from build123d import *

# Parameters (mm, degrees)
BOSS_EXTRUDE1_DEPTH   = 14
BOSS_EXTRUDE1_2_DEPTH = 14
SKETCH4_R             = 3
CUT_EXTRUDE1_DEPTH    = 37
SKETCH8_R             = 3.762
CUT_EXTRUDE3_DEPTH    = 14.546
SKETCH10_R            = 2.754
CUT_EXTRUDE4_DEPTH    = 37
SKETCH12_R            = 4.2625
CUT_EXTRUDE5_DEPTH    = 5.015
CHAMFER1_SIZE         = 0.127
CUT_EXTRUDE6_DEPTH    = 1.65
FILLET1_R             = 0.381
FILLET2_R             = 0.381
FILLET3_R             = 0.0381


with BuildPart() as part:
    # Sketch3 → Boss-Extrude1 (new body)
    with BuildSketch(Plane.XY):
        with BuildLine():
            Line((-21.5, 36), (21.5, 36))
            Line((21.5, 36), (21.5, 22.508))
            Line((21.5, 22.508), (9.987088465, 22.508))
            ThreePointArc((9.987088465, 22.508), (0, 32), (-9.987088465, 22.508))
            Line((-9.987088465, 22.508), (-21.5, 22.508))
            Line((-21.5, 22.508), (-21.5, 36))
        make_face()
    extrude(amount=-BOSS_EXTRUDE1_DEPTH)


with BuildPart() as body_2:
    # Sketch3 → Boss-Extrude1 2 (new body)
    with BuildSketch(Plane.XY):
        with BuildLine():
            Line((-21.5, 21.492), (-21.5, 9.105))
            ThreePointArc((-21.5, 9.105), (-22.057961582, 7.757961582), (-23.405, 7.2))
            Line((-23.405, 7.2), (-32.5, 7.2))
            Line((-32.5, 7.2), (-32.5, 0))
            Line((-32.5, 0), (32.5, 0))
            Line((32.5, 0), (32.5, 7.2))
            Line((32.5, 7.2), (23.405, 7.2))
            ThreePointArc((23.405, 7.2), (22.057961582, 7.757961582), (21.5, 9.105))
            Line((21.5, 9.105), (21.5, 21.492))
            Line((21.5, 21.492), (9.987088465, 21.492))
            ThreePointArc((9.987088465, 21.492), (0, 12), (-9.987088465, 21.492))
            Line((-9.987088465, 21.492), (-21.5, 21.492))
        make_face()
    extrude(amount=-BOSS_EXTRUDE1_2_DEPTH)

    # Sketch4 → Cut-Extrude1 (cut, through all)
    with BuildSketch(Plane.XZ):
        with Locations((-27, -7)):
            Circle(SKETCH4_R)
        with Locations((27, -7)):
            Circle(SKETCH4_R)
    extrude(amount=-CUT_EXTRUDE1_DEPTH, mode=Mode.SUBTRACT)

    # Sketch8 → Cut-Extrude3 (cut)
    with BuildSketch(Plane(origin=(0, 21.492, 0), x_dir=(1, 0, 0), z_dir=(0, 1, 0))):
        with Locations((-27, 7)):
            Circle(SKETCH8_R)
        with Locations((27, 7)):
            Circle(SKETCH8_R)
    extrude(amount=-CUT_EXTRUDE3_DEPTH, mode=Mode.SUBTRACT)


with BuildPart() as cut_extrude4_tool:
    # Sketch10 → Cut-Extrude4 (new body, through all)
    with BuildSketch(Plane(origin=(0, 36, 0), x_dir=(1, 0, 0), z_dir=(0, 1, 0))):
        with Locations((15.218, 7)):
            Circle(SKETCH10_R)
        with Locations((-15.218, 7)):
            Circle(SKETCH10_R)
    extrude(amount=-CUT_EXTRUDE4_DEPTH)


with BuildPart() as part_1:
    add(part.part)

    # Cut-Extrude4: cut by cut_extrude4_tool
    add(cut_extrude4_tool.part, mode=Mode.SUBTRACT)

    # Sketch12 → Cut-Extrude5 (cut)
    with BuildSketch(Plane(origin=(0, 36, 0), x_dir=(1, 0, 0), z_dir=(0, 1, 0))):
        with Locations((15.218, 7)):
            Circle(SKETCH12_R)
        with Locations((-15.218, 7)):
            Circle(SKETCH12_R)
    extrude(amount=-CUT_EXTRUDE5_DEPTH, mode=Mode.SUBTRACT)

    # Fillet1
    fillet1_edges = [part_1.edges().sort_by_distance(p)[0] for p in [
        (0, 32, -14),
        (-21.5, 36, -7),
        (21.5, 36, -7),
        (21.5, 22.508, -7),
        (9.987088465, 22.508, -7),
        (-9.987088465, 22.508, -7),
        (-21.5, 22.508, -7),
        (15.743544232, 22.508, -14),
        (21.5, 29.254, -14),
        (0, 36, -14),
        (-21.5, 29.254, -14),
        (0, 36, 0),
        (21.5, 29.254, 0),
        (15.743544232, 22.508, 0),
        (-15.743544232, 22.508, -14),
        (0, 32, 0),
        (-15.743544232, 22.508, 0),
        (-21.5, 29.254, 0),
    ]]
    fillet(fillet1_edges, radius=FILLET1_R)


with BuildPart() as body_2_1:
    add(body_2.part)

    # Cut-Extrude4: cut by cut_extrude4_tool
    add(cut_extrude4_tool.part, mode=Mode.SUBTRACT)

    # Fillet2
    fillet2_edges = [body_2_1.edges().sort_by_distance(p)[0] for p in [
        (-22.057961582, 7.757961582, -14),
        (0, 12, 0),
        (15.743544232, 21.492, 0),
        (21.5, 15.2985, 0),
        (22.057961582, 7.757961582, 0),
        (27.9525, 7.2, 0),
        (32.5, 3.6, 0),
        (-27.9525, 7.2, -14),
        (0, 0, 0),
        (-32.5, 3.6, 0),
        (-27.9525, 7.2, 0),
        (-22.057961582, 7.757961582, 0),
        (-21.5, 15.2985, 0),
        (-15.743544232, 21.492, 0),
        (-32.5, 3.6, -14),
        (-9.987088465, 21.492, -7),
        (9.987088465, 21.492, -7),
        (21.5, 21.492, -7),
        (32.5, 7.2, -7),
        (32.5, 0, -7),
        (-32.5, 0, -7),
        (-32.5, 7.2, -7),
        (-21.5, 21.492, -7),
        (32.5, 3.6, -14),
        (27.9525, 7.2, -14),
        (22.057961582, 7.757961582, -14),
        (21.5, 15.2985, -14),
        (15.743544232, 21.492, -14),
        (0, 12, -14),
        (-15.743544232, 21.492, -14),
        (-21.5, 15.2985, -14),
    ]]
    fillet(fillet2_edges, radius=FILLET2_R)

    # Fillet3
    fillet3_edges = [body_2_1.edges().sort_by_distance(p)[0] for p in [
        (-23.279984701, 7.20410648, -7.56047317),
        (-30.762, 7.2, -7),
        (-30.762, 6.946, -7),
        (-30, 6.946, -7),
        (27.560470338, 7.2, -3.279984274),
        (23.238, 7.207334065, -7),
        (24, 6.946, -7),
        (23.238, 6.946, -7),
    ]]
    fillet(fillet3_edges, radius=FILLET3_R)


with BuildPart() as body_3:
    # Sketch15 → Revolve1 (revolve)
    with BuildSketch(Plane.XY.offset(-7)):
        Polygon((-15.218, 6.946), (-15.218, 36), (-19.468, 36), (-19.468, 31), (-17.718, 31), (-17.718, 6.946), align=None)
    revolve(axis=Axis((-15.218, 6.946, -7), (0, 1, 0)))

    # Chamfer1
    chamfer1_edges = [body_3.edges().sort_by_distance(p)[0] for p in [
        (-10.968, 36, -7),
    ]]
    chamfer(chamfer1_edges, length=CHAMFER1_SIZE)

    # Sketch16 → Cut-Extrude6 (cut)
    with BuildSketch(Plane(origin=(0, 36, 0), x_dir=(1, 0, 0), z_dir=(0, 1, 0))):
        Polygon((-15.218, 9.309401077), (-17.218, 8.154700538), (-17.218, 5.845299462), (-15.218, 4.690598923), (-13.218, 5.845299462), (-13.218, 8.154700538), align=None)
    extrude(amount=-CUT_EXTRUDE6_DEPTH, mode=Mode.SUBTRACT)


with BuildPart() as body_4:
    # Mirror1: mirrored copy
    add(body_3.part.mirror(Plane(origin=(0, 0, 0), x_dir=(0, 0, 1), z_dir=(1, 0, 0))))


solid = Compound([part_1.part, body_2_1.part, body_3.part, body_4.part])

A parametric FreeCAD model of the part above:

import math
import FreeCAD as App
import Part
import Sketcher

V = App.Vector
Q = App.Units.Quantity


def edges_at(feature, points):
    """Names of the edges that pass closest to the given points."""
    edges = feature.Shape.Edges
    near = lambda p: min(range(len(edges)), key=lambda i: edges[i].distToShape(Part.Vertex(*p))[0])
    return sorted({f"Edge{near(p) + 1}" for p in points})

doc = App.newDocument("Part")
body = doc.addObject("PartDesign::Body", "Body")

# Sketch on XY plane
sketch1 = doc.addObject("Sketcher::SketchObject", "Sketch")
body.addObject(sketch1)
sketch1.AttachmentSupport = (doc.XY_Plane, [""])
sketch1.MapMode = "FlatFace"
sketch1.addGeometry([
    Part.LineSegment(V(22, 36, 0), V(-22, 36, 0)),  # 0
    Part.LineSegment(V(-22, 36, 0), V(-22, 23, 0)),  # 1
    Part.LineSegment(V(-22, 23, 0), V(-10, 23, 0)),  # 2
    Part.ArcOfCircle(Part.Circle(V(0, 22, 0), V(0, 0, 1), 10), math.radians(3), math.radians(177)),  # 3
    Part.LineSegment(V(10, 23, 0), V(22, 23, 0)),  # 4
    Part.LineSegment(V(22, 23, 0), V(22, 36, 0)),  # 5
], False)
sketch1.addConstraint([
    Sketcher.Constraint("Coincident", 0, 2, 1, 1),
    Sketcher.Constraint("Coincident", 1, 2, 2, 1),
    Sketcher.Constraint("Coincident", 2, 2, 3, 2),
    Sketcher.Constraint("Coincident", 3, 1, 4, 1),
    Sketcher.Constraint("Coincident", 4, 2, 5, 1),
    Sketcher.Constraint("Coincident", 5, 2, 0, 1),
    Sketcher.Constraint("Horizontal", 0),
    Sketcher.Constraint("Vertical", 1),
    Sketcher.Constraint("Horizontal", 2),
    Sketcher.Constraint("Horizontal", 4),
    Sketcher.Constraint("Vertical", 5),
    Sketcher.Constraint("Symmetric", 2, 2, 3, 1, -2),
    Sketcher.Constraint("Equal", 2, 4),
    Sketcher.Constraint("Radius", 3, Q("10 mm")),
    Sketcher.Constraint("DistanceX", 0, 2, 0, 1, Q("43 mm")),
    Sketcher.Constraint("DistanceY", -1, 1, 3, 3, Q("22 mm")),
    Sketcher.Constraint("DistanceY", -1, 1, 0, 2, Q("36 mm")),
    Sketcher.Constraint("DistanceY", 1, 2, 1, 1, Q("13.492 mm")),
])
pad1 = doc.addObject("PartDesign::Pad", "Pad")
body.addObject(pad1)
pad1.Profile = sketch1
pad1.Length = 14
pad1.Reversed = True
body2 = doc.addObject("PartDesign::Body", "Body001")

# Sketch on XY plane
sketch2 = doc.addObject("Sketcher::SketchObject", "Sketch001")
body2.addObject(sketch2)
sketch2.AttachmentSupport = (doc.getObject("XY_Plane001"), [""])
sketch2.MapMode = "FlatFace"
sketch2.addGeometry([
    Part.LineSegment(V(-21.5, 21.5, 0), V(-21.5, 9.1, 0)),  # 0
    Part.ArcOfCircle(Part.Circle(V(-23.4, 9.1, 0), V(0, 0, 1), 1.9), math.radians(-90), math.radians(0)),  # 1
    Part.LineSegment(V(-23.4, 7.2, 0), V(-32.5, 7.2, 0)),  # 2
    Part.LineSegment(V(-32.5, 7.2, 0), V(-32.5, 0, 0)),  # 3
    Part.LineSegment(V(-32.5, 0, 0), V(32.5, 0, 0)),  # 4
    Part.LineSegment(V(32.5, 0, 0), V(32.5, 7.2, 0)),  # 5
    Part.LineSegment(V(32.5, 7.2, 0), V(23.4, 7.2, 0)),  # 6
    Part.ArcOfCircle(Part.Circle(V(23.4, 9.1, 0), V(0, 0, 1), 1.9), math.radians(-180), math.radians(-90)),  # 7
    Part.LineSegment(V(21.5, 9.1, 0), V(21.5, 21.5, 0)),  # 8
    Part.LineSegment(V(21.5, 21.5, 0), V(10, 21.5, 0)),  # 9
    Part.ArcOfCircle(Part.Circle(V(0, 22, 0), V(0, 0, 1), 10), math.radians(-177), math.radians(-3)),  # 10
    Part.LineSegment(V(-10, 21.5, 0), V(-21.5, 21.5, 0)),  # 11
], False)
sketch2.addConstraint([
    Sketcher.Constraint("Tangent", 0, 2, 1, 2),
    Sketcher.Constraint("Tangent", 1, 1, 2, 1),
    Sketcher.Constraint("Coincident", 2, 2, 3, 1),
    Sketcher.Constraint("Coincident", 3, 2, 4, 1),
    Sketcher.Constraint("Coincident", 4, 2, 5, 1),
    Sketcher.Constraint("Coincident", 5, 2, 6, 1),
    Sketcher.Constraint("Tangent", 6, 2, 7, 2),
    Sketcher.Constraint("Tangent", 7, 1, 8, 1),
    Sketcher.Constraint("Coincident", 8, 2, 9, 1),
    Sketcher.Constraint("Coincident", 9, 2, 10, 2),
    Sketcher.Constraint("Coincident", 10, 1, 11, 1),
    Sketcher.Constraint("Coincident", 11, 2, 0, 1),
    Sketcher.Constraint("Vertical", 0),
    Sketcher.Constraint("Horizontal", 2),
    Sketcher.Constraint("Vertical", 3),
    Sketcher.Constraint("Horizontal", 4),
    Sketcher.Constraint("Vertical", 5),
    Sketcher.Constraint("Horizontal", 6),
    Sketcher.Constraint("Vertical", 8),
    Sketcher.Constraint("Horizontal", 9),
    Sketcher.Constraint("Horizontal", 11),
    Sketcher.Constraint("Equal", 1, 7),
    Sketcher.Constraint("Symmetric", 3, 2, 4, 2, -1, 1),
    Sketcher.Constraint("Symmetric", 1, 3, 7, 3, -2),
    Sketcher.Constraint("Symmetric", 9, 2, 10, 1, -2),
    Sketcher.Constraint("Radius", 10, Q("10 mm")),
    Sketcher.Constraint("DistanceX", 4, 1, 4, 2, Q("65 mm")),
    Sketcher.Constraint("DistanceY", 3, 2, 3, 1, Q("7.2 mm")),
    Sketcher.Constraint("DistanceY", -1, 1, 10, 3, Q("22 mm")),
    Sketcher.Constraint("Radius", 1, Q("1.905 mm")),
    Sketcher.Constraint("DistanceX", 2, 2, 0, 2, Q("11 mm")),
    Sketcher.Constraint("DistanceY", 0, 2, 0, 1, Q("12.387 mm")),
])
pad2 = doc.addObject("PartDesign::Pad", "Pad001")
body2.addObject(pad2)
pad2.Profile = sketch2
pad2.Length = 14
pad2.Reversed = True

# Sketch on XZ plane
sketch3 = doc.addObject("Sketcher::SketchObject", "Sketch002")
body2.addObject(sketch3)
sketch3.AttachmentSupport = (doc.getObject("XZ_Plane001"), [""])
sketch3.MapMode = "FlatFace"
sketch3.addGeometry([
    Part.Circle(V(-27, -7, 0), V(0, 0, 1), 3),
    Part.Circle(V(27, -7, 0), V(0, 0, 1), 3),
], False)
sketch3.addConstraint([
    Sketcher.Constraint("Equal", 0, 1),
    Sketcher.Constraint("Symmetric", 0, 3, 1, 3, -2),
    Sketcher.Constraint("Diameter", 0, Q("6 mm")),
    Sketcher.Constraint("DistanceX", 0, 3, -1, 1, Q("27 mm")),
    Sketcher.Constraint("DistanceY", 0, 3, -1, 1, Q("7 mm")),
])
pocket1 = doc.addObject("PartDesign::Pocket", "Pocket")
body2.addObject(pocket1)
pocket1.Profile = sketch3
pocket1.Type = "ThroughAll"

# Sketch on XZ plane
sketch4 = doc.addObject("Sketcher::SketchObject", "Sketch003")
body2.addObject(sketch4)
sketch4.AttachmentSupport = (doc.getObject("XZ_Plane001"), [""])
sketch4.MapMode = "FlatFace"
sketch4.AttachmentOffset = App.Placement(V(0, 0, -21.492), App.Rotation())
sketch4.addGeometry([
    Part.Circle(V(-27, -7, 0), V(0, 0, 1), 3.8),
    Part.Circle(V(27, -7, 0), V(0, 0, 1), 3.8),
], False)
sketch4.addConstraint([
    Sketcher.Constraint("Equal", 0, 1),
    Sketcher.Constraint("Symmetric", 0, 3, 1, 3, -2),
    Sketcher.Constraint("Diameter", 0, Q("7.524 mm")),
    Sketcher.Constraint("DistanceX", 0, 3, -1, 1, Q("27 mm")),
    Sketcher.Constraint("DistanceY", 0, 3, -1, 1, Q("7 mm")),
])
pocket2 = doc.addObject("PartDesign::Pocket", "Pocket001")
body2.addObject(pocket2)
pocket2.Profile = sketch4
pocket2.Length = 14.546
pocket2.Reversed = True
body3 = doc.addObject("PartDesign::Body", "Body002")
body3.AllowCompound = True

# Sketch on XZ plane
sketch5 = doc.addObject("Sketcher::SketchObject", "Sketch004")
body3.addObject(sketch5)
sketch5.AttachmentSupport = (doc.getObject("XZ_Plane002"), [""])
sketch5.MapMode = "FlatFace"
sketch5.AttachmentOffset = App.Placement(V(0, 0, -36), App.Rotation())
sketch5.addGeometry([
    Part.Circle(V(15.2, -7, 0), V(0, 0, 1), 2.8),
    Part.Circle(V(-15.2, -7, 0), V(0, 0, 1), 2.8),
], False)
sketch5.addConstraint([
    Sketcher.Constraint("Equal", 0, 1),
    Sketcher.Constraint("Symmetric", 0, 3, 1, 3, -2),
    Sketcher.Constraint("Diameter", 0, Q("5.508 mm")),
    Sketcher.Constraint("DistanceY", 0, 3, -1, 1, Q("7 mm")),
    Sketcher.Constraint("DistanceX", -1, 1, 0, 3, Q("15.218 mm")),
])
pad3 = doc.addObject("PartDesign::Pad", "Pad002")
body3.addObject(pad3)
pad3.Profile = sketch5
pad3.Length = 37
doc.recompute()

body4 = doc.addObject("PartDesign::Body", "Body003")
body4.BaseFeature = body3
boolean = doc.addObject("PartDesign::Boolean", "Boolean")
body.addObject(boolean)
boolean.Type = "Cut"
boolean.addObjects([body4])
doc.recompute()

# Sketch on XZ plane
sketch6 = doc.addObject("Sketcher::SketchObject", "Sketch005")
body.addObject(sketch6)
sketch6.AttachmentSupport = (doc.XZ_Plane, [""])
sketch6.MapMode = "FlatFace"
sketch6.AttachmentOffset = App.Placement(V(0, 0, -36), App.Rotation())
sketch6.addGeometry([
    Part.Circle(V(15.2, -7, 0), V(0, 0, 1), 4.3),
    Part.Circle(V(-15.2, -7, 0), V(0, 0, 1), 4.3),
], False)
sketch6.addConstraint([
    Sketcher.Constraint("Equal", 0, 1),
    Sketcher.Constraint("Symmetric", 0, 3, 1, 3, -2),
    Sketcher.Constraint("Diameter", 0, Q("8.525 mm")),
    Sketcher.Constraint("DistanceY", 0, 3, -1, 1, Q("7 mm")),
    Sketcher.Constraint("DistanceX", -1, 1, 0, 3, Q("15.218 mm")),
])
pocket3 = doc.addObject("PartDesign::Pocket", "Pocket002")
body.addObject(pocket3)
pocket3.Profile = sketch6
pocket3.Length = 5.015
pocket3.Reversed = True
doc.recompute()

fillet = doc.addObject("PartDesign::Fillet", "Fillet")
body.addObject(fillet)
fillet.Base = (pocket3, edges_at(pocket3, [
    (0, 32, -14),
    (-21.5, 36, -7),
    (21.5, 36, -7),
    (21.5, 22.508, -7),
    (9.987, 22.508, -7),
    (-9.987, 22.508, -7),
    (-21.5, 22.508, -7),
    (15.744, 22.508, -14),
    (21.5, 29.254, -14),
    (0, 36, -14),
    (-21.5, 29.254, -14),
    (0, 36, 0),
    (21.5, 29.254, 0),
    (15.744, 22.508, 0),
    (-15.744, 22.508, -14),
    (0, 32, 0),
    (-15.744, 22.508, 0),
    (-21.5, 29.254, 0),
]))
fillet.Radius = 0.381
doc.recompute()

boolean2 = doc.addObject("PartDesign::Boolean", "Boolean001")
body2.addObject(boolean2)
boolean2.Type = "Cut"
boolean2.addObjects([body3])
doc.recompute()

fillet2 = doc.addObject("PartDesign::Fillet", "Fillet001")
body2.addObject(fillet2)
fillet2.Base = (boolean2, edges_at(boolean2, [
    (-22.058, 7.758, -14),
    (0, 12, 0),
    (15.744, 21.492, 0),
    (21.5, 15.299, 0),
    (22.058, 7.758, 0),
    (27.953, 7.2, 0),
    (32.5, 3.6, 0),
    (-27.953, 7.2, -14),
    (0, 0, 0),
    (-32.5, 3.6, 0),
    (-27.953, 7.2, 0),
    (-22.058, 7.758, 0),
    (-21.5, 15.299, 0),
    (-15.744, 21.492, 0),
    (-32.5, 3.6, -14),
    (-9.987, 21.492, -7),
    (9.987, 21.492, -7),
    (21.5, 21.492, -7),
    (32.5, 7.2, -7),
    (32.5, 0, -7),
    (-32.5, 0, -7),
    (-32.5, 7.2, -7),
    (-21.5, 21.492, -7),
    (32.5, 3.6, -14),
    (27.953, 7.2, -14),
    (22.058, 7.758, -14),
    (21.5, 15.299, -14),
    (15.744, 21.492, -14),
    (0, 12, -14),
    (-15.744, 21.492, -14),
    (-21.5, 15.299, -14),
]))
fillet2.Radius = 0.381
doc.recompute()

fillet3 = doc.addObject("PartDesign::Fillet", "Fillet002")
body2.addObject(fillet3)
fillet3.Base = (fillet2, edges_at(fillet2, [
    (-23.28, 7.204, -7.56),
    (-30.762, 7.2, -7),
    (-30.762, 6.946, -7),
    (-30, 6.946, -7),
    (27.56, 7.2, -3.28),
    (23.238, 7.207, -7),
    (24, 6.946, -7),
    (23.238, 6.946, -7),
]))
fillet3.Radius = 0.0381
body5 = doc.addObject("PartDesign::Body", "Body004")

# Sketch on XY plane
sketch7 = doc.addObject("Sketcher::SketchObject", "Sketch006")
body5.addObject(sketch7)
sketch7.AttachmentSupport = (doc.getObject("XY_Plane004"), [""])
sketch7.MapMode = "FlatFace"
sketch7.AttachmentOffset = App.Placement(V(0, 0, -7), App.Rotation())
sketch7.addGeometry([
    Part.LineSegment(V(-15.2, 6.9, 0), V(-15.2, 36, 0)),  # 0
    Part.LineSegment(V(-15.2, 36, 0), V(-19.5, 36, 0)),  # 1
    Part.LineSegment(V(-19.5, 36, 0), V(-19.5, 31, 0)),  # 2
    Part.LineSegment(V(-19.5, 31, 0), V(-17.7, 31, 0)),  # 3
    Part.LineSegment(V(-17.7, 31, 0), V(-17.7, 6.9, 0)),  # 4
    Part.LineSegment(V(-17.7, 6.9, 0), V(-15.2, 6.9, 0)),  # 5
], False)
sketch7.addGeometry(Part.LineSegment(V(-15.2, 6.9, 0), V(-15.2, 36, 0)), True)  # axis
sketch7.addConstraint([
    Sketcher.Constraint("Coincident", 0, 2, 1, 1),
    Sketcher.Constraint("Coincident", 1, 2, 2, 1),
    Sketcher.Constraint("Coincident", 2, 2, 3, 1),
    Sketcher.Constraint("Coincident", 3, 2, 4, 1),
    Sketcher.Constraint("Coincident", 4, 2, 5, 1),
    Sketcher.Constraint("Coincident", 5, 2, 0, 1),
    Sketcher.Constraint("Vertical", 0),
    Sketcher.Constraint("Horizontal", 1),
    Sketcher.Constraint("Vertical", 2),
    Sketcher.Constraint("Horizontal", 3),
    Sketcher.Constraint("Vertical", 4),
    Sketcher.Constraint("Horizontal", 5),
    Sketcher.Constraint("Vertical", 6),
    Sketcher.Constraint("Coincident", 6, 1, 5, 2),
    Sketcher.Constraint("Horizontal", 1, 2, 6, 2),
    Sketcher.Constraint("DistanceY", 2, 2, 2, 1, Q("5 mm")),
    Sketcher.Constraint("DistanceX", 5, 1, 5, 2, Q("2.5 mm")),
    Sketcher.Constraint("DistanceY", -1, 1, 0, 2, Q("36 mm")),
    Sketcher.Constraint("DistanceX", 1, 2, 1, 1, Q("4.25 mm")),
    Sketcher.Constraint("DistanceY", 0, 1, 0, 2, Q("29.054 mm")),
    Sketcher.Constraint("DistanceX", 0, 2, -1, 1, Q("15.218 mm")),
])
revolution = doc.addObject("PartDesign::Revolution", "Revolution")
body5.addObject(revolution)
revolution.Profile = sketch7
revolution.ReferenceAxis = (sketch7, ["Axis0"])
revolution.Angle = 360
doc.recompute()

chamfer = doc.addObject("PartDesign::Chamfer", "Chamfer")
body5.addObject(chamfer)
chamfer.Base = (revolution, edges_at(revolution, [(-10.968, 36, -7)]))
chamfer.Size = 0.127

# Sketch on XZ plane
sketch8 = doc.addObject("Sketcher::SketchObject", "Sketch007")
body5.addObject(sketch8)
sketch8.AttachmentSupport = (doc.getObject("XZ_Plane004"), [""])
sketch8.MapMode = "FlatFace"
sketch8.AttachmentOffset = App.Placement(V(0, 0, -36), App.Rotation())
sketch8.addGeometry([
    Part.LineSegment(V(-15.2, -9.3, 0), V(-17.2, -8.2, 0)),  # 0
    Part.LineSegment(V(-17.2, -8.2, 0), V(-17.2, -5.8, 0)),  # 1
    Part.LineSegment(V(-17.2, -5.8, 0), V(-15.2, -4.7, 0)),  # 2
    Part.LineSegment(V(-15.2, -4.7, 0), V(-13.2, -5.8, 0)),  # 3
    Part.LineSegment(V(-13.2, -5.8, 0), V(-13.2, -8.2, 0)),  # 4
    Part.LineSegment(V(-13.2, -8.2, 0), V(-15.2, -9.3, 0)),  # 5
], False)
sketch8.addConstraint([
    Sketcher.Constraint("Coincident", 0, 2, 1, 1),
    Sketcher.Constraint("Coincident", 1, 2, 2, 1),
    Sketcher.Constraint("Coincident", 2, 2, 3, 1),
    Sketcher.Constraint("Coincident", 3, 2, 4, 1),
    Sketcher.Constraint("Coincident", 4, 2, 5, 1),
    Sketcher.Constraint("Coincident", 5, 2, 0, 1),
    Sketcher.Constraint("Vertical", 1),
    Sketcher.Constraint("Vertical", 4),
    Sketcher.Constraint("Parallel", 0, 3),
    Sketcher.Constraint("Parallel", 2, 5),
    Sketcher.Constraint("Horizontal", 1, 2, 3, 2),
    Sketcher.Constraint("Horizontal", 0, 2, 4, 2),
    Sketcher.Constraint("Vertical", 2, 2, 5, 2),
    Sketcher.Constraint("Angle", 0, Q("150 deg")),
    Sketcher.Constraint("DistanceX", 1, 2, 2, 2, Q("2 mm")),
    Sketcher.Constraint("DistanceY", 1, 1, 1, 2, Q("2.309401 mm")),
    Sketcher.Constraint("DistanceX", 0, 2, -1, 1, Q("17.218 mm")),
    Sketcher.Constraint("DistanceY", 0, 2, -1, 1, Q("8.154701 mm")),
])
pocket4 = doc.addObject("PartDesign::Pocket", "Pocket003")
body5.addObject(pocket4)
pocket4.Profile = sketch8
pocket4.Length = 1.65
pocket4.Reversed = True
body6 = doc.addObject("PartDesign::Body", "Body005")
doc.recompute()

mirroring = doc.addObject("Part::Mirroring", "Mirroring")
mirroring.Source = body5
mirroring.Base = V(0, 0, 0)
mirroring.Normal = V(1, 0, 0)
body6.BaseFeature = mirroring
doc.recompute()
mirroring.Visibility = False

doc.recompute()
